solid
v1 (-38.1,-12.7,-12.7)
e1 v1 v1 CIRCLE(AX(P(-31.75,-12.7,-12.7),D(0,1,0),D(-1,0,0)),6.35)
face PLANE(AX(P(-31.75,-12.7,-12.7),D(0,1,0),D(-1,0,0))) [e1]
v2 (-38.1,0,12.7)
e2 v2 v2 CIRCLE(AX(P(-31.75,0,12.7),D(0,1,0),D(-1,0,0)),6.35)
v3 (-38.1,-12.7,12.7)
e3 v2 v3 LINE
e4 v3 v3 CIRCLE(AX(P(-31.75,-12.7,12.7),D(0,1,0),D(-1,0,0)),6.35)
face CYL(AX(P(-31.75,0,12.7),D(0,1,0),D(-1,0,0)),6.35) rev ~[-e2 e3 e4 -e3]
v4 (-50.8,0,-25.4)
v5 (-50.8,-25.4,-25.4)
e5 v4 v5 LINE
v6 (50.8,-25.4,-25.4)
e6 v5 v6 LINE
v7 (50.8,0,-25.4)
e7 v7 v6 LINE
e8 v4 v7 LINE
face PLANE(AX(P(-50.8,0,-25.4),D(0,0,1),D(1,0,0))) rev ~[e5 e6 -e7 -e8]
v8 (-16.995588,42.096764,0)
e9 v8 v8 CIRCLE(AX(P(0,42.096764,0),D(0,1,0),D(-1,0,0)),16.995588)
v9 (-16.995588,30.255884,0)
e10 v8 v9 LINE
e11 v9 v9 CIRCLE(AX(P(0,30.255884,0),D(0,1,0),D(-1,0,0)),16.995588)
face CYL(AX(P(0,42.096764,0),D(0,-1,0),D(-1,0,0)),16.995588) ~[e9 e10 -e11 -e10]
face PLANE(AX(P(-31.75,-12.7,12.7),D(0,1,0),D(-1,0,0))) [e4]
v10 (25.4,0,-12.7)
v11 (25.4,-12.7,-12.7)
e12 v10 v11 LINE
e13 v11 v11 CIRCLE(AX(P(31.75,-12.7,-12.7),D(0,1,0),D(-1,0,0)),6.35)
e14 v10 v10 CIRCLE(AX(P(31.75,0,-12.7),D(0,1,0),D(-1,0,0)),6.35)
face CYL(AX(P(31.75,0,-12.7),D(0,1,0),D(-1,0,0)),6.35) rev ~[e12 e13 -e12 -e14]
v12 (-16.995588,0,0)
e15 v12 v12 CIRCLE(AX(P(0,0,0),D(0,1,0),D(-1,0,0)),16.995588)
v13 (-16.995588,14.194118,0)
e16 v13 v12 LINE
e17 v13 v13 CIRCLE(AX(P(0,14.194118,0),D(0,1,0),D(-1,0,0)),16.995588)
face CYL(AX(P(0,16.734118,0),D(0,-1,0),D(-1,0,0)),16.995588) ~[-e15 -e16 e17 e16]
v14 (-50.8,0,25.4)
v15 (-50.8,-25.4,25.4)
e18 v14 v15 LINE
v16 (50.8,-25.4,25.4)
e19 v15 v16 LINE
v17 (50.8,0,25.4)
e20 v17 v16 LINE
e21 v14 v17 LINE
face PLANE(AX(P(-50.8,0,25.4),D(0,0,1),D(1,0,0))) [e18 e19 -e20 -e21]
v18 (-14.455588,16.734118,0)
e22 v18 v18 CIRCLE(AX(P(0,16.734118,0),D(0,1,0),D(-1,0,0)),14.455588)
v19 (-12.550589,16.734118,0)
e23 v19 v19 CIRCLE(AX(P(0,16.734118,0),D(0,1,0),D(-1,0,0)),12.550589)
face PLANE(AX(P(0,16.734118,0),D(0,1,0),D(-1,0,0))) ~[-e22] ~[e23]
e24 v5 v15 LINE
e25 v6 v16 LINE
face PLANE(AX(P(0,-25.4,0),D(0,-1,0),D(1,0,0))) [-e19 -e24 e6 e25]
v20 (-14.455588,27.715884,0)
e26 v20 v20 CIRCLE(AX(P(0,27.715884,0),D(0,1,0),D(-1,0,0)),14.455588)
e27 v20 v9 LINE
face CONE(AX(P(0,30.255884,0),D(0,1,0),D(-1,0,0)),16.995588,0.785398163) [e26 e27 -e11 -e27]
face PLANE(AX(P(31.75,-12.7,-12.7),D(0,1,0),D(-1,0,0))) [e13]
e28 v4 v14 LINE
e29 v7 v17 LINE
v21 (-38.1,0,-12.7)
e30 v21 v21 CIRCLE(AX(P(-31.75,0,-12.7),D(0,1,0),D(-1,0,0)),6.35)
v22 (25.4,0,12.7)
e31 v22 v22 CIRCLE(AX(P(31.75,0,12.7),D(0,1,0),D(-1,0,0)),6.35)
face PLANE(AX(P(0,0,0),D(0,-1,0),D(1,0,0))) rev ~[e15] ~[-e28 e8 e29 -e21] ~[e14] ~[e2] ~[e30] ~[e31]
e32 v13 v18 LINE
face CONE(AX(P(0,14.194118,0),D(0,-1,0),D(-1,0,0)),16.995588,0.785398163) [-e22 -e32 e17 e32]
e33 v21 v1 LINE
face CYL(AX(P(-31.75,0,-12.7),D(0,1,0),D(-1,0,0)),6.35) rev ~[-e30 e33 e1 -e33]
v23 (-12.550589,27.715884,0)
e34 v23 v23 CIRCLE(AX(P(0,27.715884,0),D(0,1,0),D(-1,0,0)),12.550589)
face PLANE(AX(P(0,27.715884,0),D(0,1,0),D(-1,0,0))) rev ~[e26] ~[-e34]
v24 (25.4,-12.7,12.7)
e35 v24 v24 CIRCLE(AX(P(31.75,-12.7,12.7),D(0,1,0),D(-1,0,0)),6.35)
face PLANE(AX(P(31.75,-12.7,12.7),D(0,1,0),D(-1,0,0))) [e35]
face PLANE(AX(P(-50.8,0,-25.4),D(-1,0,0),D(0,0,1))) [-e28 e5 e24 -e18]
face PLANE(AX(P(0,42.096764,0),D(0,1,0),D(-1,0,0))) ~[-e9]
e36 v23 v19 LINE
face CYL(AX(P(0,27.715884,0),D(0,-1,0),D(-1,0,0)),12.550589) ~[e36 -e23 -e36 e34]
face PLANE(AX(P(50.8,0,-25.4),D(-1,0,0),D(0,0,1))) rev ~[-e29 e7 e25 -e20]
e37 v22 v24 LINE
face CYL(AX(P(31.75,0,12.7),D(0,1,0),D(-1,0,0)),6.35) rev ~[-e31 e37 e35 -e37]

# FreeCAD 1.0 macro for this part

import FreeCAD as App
import Part
import Sketcher
from FreeCAD import Vector
Q = App.Units.Quantity


def edges_at(feature, points):
    """Names of the edges that pass closest to the given points."""
    edges = feature.Shape.Edges
    near = lambda p: min(range(len(edges)), key=lambda i: edges[i].distToShape(Part.Vertex(*p))[0])
    return sorted({f"Edge{near(p) + 1}" for p in points})


def add_polygon(sketch, points):
    """Adds a closed chain of lines whose ends are joined by coincident constraints."""
    first, n = sketch.GeometryCount, len(points)
    for a, b in zip(points, points[1:] + points[:1]):
        sketch.addGeometry(Part.LineSegment(App.Vector(*a, 0), App.Vector(*b, 0)), False)
    for i in range(n):
        sketch.addConstraint(Sketcher.Constraint("Coincident", first + i, 2, first + (i + 1) % n, 1))

doc = App.newDocument("Part")
params = doc.addObject("Spreadsheet::Sheet", "Params")
for row, (alias, value) in enumerate([
    ("sketch1_width", "4 in"),
    ("sketch1_height", "2 in"),
    ("pad1_length", "1 in"),
    ("sketch2_diameter", "0.5 in"),
    ("pocket1_length", "0.5 in"),
    ("sketch3_width", "0.175 in"),
    ("revolution_angle", "360 deg"),
    ("chamfer_size", "0.1 in"),
], start=1):
    params.set(f"A{row}", alias)
    params.set(f"B{row}", "=" + value)
    params.setAlias(f"B{row}", alias)

body = doc.addObject("PartDesign::Body", "Body")

sketch1 = doc.addObject("Sketcher::SketchObject", "Sketch")
body.addObject(sketch1)
sketch1.AttachmentSupport = (doc.XZ_Plane, [""])
sketch1.MapMode = "FlatFace"
add_polygon(sketch1, [(-51, 25), (-51, -25), (51, -25), (51, 25)])
sketch1.addConstraint([
    Sketcher.Constraint("Vertical", 0),
    Sketcher.Constraint("Horizontal", 1),
    Sketcher.Constraint("Vertical", 2),
    Sketcher.Constraint("Horizontal", 3),
    Sketcher.Constraint("Symmetric", 0, 2, 2, 2, -1, 1),
    Sketcher.Constraint("DistanceX", 1, 1, 1, 2, Q("4 in")),
    Sketcher.Constraint("DistanceY", 0, 2, 0, 1, Q("2 in")),
])
sketch1.setExpression("Constraints[9]", "Params.sketch1_width")
sketch1.setExpression("Constraints[10]", "Params.sketch1_height")
pad1 = doc.addObject("PartDesign::Pad", "Pad")
body.addObject(pad1)
pad1.Profile = sketch1
pad1.setExpression("Length", "Params.pad1_length")

sketch2 = doc.addObject("Sketcher::SketchObject", "Sketch001")
body.addObject(sketch2)
sketch2.AttachmentSupport = (doc.XZ_Plane, [""])
sketch2.MapMode = "FlatFace"
sketch2.addGeometry([
    Part.Circle(Vector(-32, -13, 0), Vector(0, 0, 1), 6),
    Part.Circle(Vector(32, 13, 0), Vector(0, 0, 1), 6),
    Part.Circle(Vector(32, -13, 0), Vector(0, 0, 1), 6),
    Part.Circle(Vector(-32, 13, 0), Vector(0, 0, 1), 6),
], False)
sketch2.addConstraint([
    Sketcher.Constraint("Equal", 0, 1),
    Sketcher.Constraint("Equal", 1, 2),
    Sketcher.Constraint("Equal", 2, 3),
    Sketcher.Constraint("Symmetric", 0, 3, 1, 3, -1, 1),
    Sketcher.Constraint("Symmetric", 2, 3, 3, 3, -1, 1),
    Sketcher.Constraint("Symmetric", 0, 3, 2, 3, -2),
    Sketcher.Constraint("Diameter", 0, Q("0.5 in")),
    Sketcher.Constraint("DistanceY", 0, 3, 1, 3, Q("1 in")),
    Sketcher.Constraint("DistanceX", 0, 3, 1, 3, Q("2.5 in")),
])
sketch2.setExpression("Constraints[6]", "Params.sketch2_diameter")
pocket1 = doc.addObject("PartDesign::Pocket", "Pocket")
body.addObject(pocket1)
pocket1.Profile = sketch2
pocket1.setExpression("Length", "Params.pocket1_length")
pocket1.Reversed = True

sketch3 = doc.addObject("Sketcher::SketchObject", "Sketch002")
body.addObject(sketch3)
sketch3.AttachmentSupport = (doc.XY_Plane, [""])
sketch3.MapMode = "FlatFace"
add_polygon(sketch3, [(-17, 0), (0, 0), (0, 42.1), (-17, 42.1), (-17, 27.7), (-12.6, 27.7), (-12.6, 16.7), (-17, 16.7)])
sketch3.addConstraint([
    Sketcher.Constraint("Horizontal", 0),
    Sketcher.Constraint("Vertical", 1),
    Sketcher.Constraint("Horizontal", 2),
    Sketcher.Constraint("Vertical", 3),
    Sketcher.Constraint("Horizontal", 4),
    Sketcher.Constraint("Vertical", 5),
    Sketcher.Constraint("Horizontal", 6),
    Sketcher.Constraint("Vertical", 7),
    Sketcher.Constraint("Coincident", 0, 2, -1, 1),
    Sketcher.Constraint("Vertical", 3, 2, 6, 2),
    Sketcher.Constraint("DistanceX", 4, 1, 4, 2, Q("0.175 in")),
    Sketcher.Constraint("DistanceX", 0, 1, 0, 2, Q("16.995588 mm")),
    Sketcher.Constraint("DistanceY", 3, 2, 3, 1, Q("14.38088 mm")),
    Sketcher.Constraint("DistanceY", 1, 1, 1, 2, Q("42.096764 mm")),
    Sketcher.Constraint("DistanceY", 5, 2, 5, 1, Q("10.981766 mm")),
])
sketch3.setExpression("Constraints[18]", "Params.sketch3_width")
revolution = doc.addObject("PartDesign::Revolution", "Revolution")
body.addObject(revolution)
revolution.Profile = sketch3
revolution.ReferenceAxis = (sketch3, ["V_Axis"])
revolution.setExpression("Angle", "Params.revolution_angle")
doc.recompute()

chamfer = doc.addObject("PartDesign::Chamfer", "Chamfer")
body.addObject(chamfer)
chamfer.Base = (revolution, edges_at(revolution, [(16.996, 16.734, 0), (16.996, 27.716, 0)]))
chamfer.setExpression("Size", "Params.chamfer_size")

doc.recompute()
